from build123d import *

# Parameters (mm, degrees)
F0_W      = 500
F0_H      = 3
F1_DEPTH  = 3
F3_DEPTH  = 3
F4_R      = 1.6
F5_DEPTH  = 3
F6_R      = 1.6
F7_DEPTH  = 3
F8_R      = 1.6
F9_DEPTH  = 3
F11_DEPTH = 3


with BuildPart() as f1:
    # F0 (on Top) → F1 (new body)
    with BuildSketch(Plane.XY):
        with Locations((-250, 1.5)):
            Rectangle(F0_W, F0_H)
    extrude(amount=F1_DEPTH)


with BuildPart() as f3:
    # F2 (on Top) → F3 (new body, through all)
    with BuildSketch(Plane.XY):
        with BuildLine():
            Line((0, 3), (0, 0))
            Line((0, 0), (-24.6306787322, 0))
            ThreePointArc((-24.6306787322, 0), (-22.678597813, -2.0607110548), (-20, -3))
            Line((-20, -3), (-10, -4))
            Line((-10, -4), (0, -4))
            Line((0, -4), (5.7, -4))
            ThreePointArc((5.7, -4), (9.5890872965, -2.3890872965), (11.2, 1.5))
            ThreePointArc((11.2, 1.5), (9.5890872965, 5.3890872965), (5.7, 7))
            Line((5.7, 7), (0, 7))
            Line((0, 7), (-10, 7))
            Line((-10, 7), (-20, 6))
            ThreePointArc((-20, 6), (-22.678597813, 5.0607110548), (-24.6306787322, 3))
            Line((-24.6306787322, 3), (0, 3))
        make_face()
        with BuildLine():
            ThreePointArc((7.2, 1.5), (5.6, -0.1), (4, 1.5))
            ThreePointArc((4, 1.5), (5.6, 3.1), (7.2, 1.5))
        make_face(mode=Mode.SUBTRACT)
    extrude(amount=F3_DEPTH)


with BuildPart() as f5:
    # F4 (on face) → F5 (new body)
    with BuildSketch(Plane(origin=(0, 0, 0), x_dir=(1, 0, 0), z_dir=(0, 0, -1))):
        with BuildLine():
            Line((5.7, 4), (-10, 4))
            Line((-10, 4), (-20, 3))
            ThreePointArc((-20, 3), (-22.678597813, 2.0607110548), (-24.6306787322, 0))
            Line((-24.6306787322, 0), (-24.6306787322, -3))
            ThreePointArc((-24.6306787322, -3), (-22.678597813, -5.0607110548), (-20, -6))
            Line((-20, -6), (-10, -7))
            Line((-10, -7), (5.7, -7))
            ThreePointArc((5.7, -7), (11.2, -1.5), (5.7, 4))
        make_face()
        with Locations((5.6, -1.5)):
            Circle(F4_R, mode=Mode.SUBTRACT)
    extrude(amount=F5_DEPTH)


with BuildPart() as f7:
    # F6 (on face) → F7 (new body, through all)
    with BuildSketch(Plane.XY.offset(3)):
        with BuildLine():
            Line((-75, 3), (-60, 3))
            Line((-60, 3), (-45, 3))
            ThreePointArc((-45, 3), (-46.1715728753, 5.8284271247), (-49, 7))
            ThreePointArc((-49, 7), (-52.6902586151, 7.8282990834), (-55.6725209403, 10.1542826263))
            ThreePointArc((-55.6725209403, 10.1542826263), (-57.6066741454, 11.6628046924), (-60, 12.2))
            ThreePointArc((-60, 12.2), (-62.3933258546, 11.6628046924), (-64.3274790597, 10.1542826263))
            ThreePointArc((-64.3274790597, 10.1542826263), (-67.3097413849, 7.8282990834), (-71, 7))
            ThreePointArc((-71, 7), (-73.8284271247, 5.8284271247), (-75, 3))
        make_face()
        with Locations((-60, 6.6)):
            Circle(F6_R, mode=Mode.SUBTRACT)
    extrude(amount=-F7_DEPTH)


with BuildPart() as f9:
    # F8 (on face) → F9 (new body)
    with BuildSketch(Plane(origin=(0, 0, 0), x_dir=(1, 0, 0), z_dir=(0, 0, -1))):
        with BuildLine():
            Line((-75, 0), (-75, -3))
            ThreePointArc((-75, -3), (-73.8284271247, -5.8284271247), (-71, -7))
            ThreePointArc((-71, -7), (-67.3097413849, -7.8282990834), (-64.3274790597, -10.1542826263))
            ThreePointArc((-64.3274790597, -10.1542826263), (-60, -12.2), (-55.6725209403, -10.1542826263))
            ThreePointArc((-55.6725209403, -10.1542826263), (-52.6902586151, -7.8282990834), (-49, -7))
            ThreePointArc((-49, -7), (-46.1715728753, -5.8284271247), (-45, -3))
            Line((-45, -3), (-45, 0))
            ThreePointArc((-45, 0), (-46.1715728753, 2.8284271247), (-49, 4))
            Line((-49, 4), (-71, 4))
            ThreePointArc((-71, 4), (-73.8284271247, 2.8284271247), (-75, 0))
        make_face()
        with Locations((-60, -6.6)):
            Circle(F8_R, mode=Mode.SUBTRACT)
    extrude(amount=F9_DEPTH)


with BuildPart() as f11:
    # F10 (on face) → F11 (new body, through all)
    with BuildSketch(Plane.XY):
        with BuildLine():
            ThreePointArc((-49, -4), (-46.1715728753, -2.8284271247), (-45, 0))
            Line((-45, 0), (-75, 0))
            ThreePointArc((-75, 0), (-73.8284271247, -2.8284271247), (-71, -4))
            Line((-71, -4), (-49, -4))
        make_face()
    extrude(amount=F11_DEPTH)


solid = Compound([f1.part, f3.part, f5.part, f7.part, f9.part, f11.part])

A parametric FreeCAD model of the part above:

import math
import FreeCAD as App
import Part
import Sketcher

doc = App.newDocument("Part")
body = doc.addObject("PartDesign::Body", "Body")

sketch1 = body.newObject("Sketcher::SketchObject", "Sketch")
sketch1.AttachmentSupport = (doc.getObject("XY_Plane"), [""])
sketch1.MapMode = "FlatFace"
sketch1.addGeometry(Part.LineSegment(App.Vector(-500, 3, 0), App.Vector(-500, 0, 0)), False)
sketch1.addGeometry(Part.LineSegment(App.Vector(-500, 0, 0), App.Vector(0, 0, 0)), False)
sketch1.addGeometry(Part.LineSegment(App.Vector(0, 0, 0), App.Vector(0, 3, 0)), False)
sketch1.addGeometry(Part.LineSegment(App.Vector(0, 3, 0), App.Vector(-500, 3, 0)), False)
sketch1.addConstraint(Sketcher.Constraint("Coincident", 0, 2, 1, 1))
sketch1.addConstraint(Sketcher.Constraint("Coincident", 1, 2, 2, 1))
sketch1.addConstraint(Sketcher.Constraint("Coincident", 2, 2, 3, 1))
sketch1.addConstraint(Sketcher.Constraint("Coincident", 3, 2, 0, 1))
sketch1.addConstraint(Sketcher.Constraint("Vertical", 0))
sketch1.addConstraint(Sketcher.Constraint("Horizontal", 1))
sketch1.addConstraint(Sketcher.Constraint("Vertical", 2))
sketch1.addConstraint(Sketcher.Constraint("Horizontal", 3))
sketch1.addConstraint(Sketcher.Constraint("Coincident", 1, 2, -1, 1))
sketch1.addConstraint(Sketcher.Constraint("DistanceX", 1, 1, 1, 2, 500.0))
sketch1.addConstraint(Sketcher.Constraint("DistanceY", 0, 2, 0, 1, 3.0))
pad1 = body.newObject("PartDesign::Pad", "Pad")
pad1.Profile = sketch1
pad1.Length = 3
body2 = doc.addObject("PartDesign::Body", "Body001")

sketch2 = body2.newObject("Sketcher::SketchObject", "Sketch001")
sketch2.AttachmentSupport = (doc.getObject("XY_Plane001"), [""])
sketch2.MapMode = "FlatFace"
sketch2.addGeometry(Part.LineSegment(App.Vector(0, 3, 0), App.Vector(0, 0, 0)), False)
sketch2.addGeometry(Part.LineSegment(App.Vector(0, 0, 0), App.Vector(-24.6, 0, 0)), False)
sketch2.addGeometry(Part.ArcOfCircle(Part.Circle(App.Vector(-19.4, 3, 0), App.Vector(0, 0, 1), 6), math.radians(-150), math.radians(-96)), False)
sketch2.addGeometry(Part.LineSegment(App.Vector(-20, -3, 0), App.Vector(-10, -4, 0)), False)
sketch2.addGeometry(Part.LineSegment(App.Vector(-10, -4, 0), App.Vector(5.7, -4, 0)), False)
sketch2.addGeometry(Part.ArcOfCircle(Part.Circle(App.Vector(5.7, 1.5, 0), App.Vector(0, 0, 1), 5.5), math.radians(-90), math.radians(0)), False)
sketch2.addGeometry(Part.ArcOfCircle(Part.Circle(App.Vector(5.7, 1.5, 0), App.Vector(0, 0, 1), 5.5), math.radians(0), math.radians(90)), False)
sketch2.addGeometry(Part.LineSegment(App.Vector(5.7, 7, 0), App.Vector(-10, 7, 0)), False)
sketch2.addGeometry(Part.LineSegment(App.Vector(-10, 7, 0), App.Vector(-20, 6, 0)), False)
sketch2.addGeometry(Part.ArcOfCircle(Part.Circle(App.Vector(-19.4, 0, 0), App.Vector(0, 0, 1), 6), math.radians(96), math.radians(150)), False)
sketch2.addGeometry(Part.LineSegment(App.Vector(-24.6, 3, 0), App.Vector(0, 3, 0)), False)
sketch2.addGeometry(Part.Circle(App.Vector(5.6, 1.5, 0), App.Vector(0, 0, 1), 1.6), False)
sketch2.addConstraint(Sketcher.Constraint("Coincident", 0, 2, 1, 1))
sketch2.addConstraint(Sketcher.Constraint("Coincident", 1, 2, 2, 1))
sketch2.addConstraint(Sketcher.Constraint("Tangent", 2, 2, 3, 1))
sketch2.addConstraint(Sketcher.Constraint("Coincident", 3, 2, 4, 1))
sketch2.addConstraint(Sketcher.Constraint("Tangent", 4, 2, 5, 1))
sketch2.addConstraint(Sketcher.Constraint("Tangent", 5, 2, 6, 1))
sketch2.addConstraint(Sketcher.Constraint("Tangent", 6, 2, 7, 1))
sketch2.addConstraint(Sketcher.Constraint("Coincident", 7, 2, 8, 1))
sketch2.addConstraint(Sketcher.Constraint("Tangent", 8, 2, 9, 1))
sketch2.addConstraint(Sketcher.Constraint("Coincident", 9, 2, 10, 1))
sketch2.addConstraint(Sketcher.Constraint("Coincident", 10, 2, 0, 1))
sketch2.addConstraint(Sketcher.Constraint("Vertical", 0))
sketch2.addConstraint(Sketcher.Constraint("Horizontal", 1))
sketch2.addConstraint(Sketcher.Constraint("Horizontal", 4))
sketch2.addConstraint(Sketcher.Constraint("Horizontal", 7))
sketch2.addConstraint(Sketcher.Constraint("Horizontal", 10))
sketch2.addConstraint(Sketcher.Constraint("Coincident", 0, 2, -1, 1))
sketch2.addConstraint(Sketcher.Constraint("Equal", 5, 6))
sketch2.addConstraint(Sketcher.Constraint("Equal", 2, 9))
sketch2.addConstraint(Sketcher.Constraint("PointOnObject", 9, 3, -1))
sketch2.addConstraint(Sketcher.Constraint("Horizontal", 6, 3, 11, 3))
sketch2.addConstraint(Sketcher.Constraint("Horizontal", 11, 3, 5, 2))
sketch2.addConstraint(Sketcher.Constraint("Horizontal", 2, 3, 9, 2))
sketch2.addConstraint(Sketcher.Constraint("Vertical", 2, 3, 9, 3))
sketch2.addConstraint(Sketcher.Constraint("Vertical", 3, 2, 7, 2))
sketch2.addConstraint(Sketcher.Constraint("Vertical", 2, 2, 8, 2))
sketch2.addConstraint(Sketcher.Constraint("Diameter", 11, 3.2))
sketch2.addConstraint(Sketcher.Constraint("Radius", 5, 5.5))
sketch2.addConstraint(Sketcher.Constraint("DistanceY", 0, 2, 0, 1, 3.0))
sketch2.addConstraint(Sketcher.Constraint("DistanceX", 4, 1, 4, 2, 15.7))
sketch2.addConstraint(Sketcher.Constraint("DistanceX", 2, 2, -1, 1, 20.0))
sketch2.addConstraint(Sketcher.Constraint("DistanceY", 2, 2, -1, 1, 3.0))
sketch2.addConstraint(Sketcher.Constraint("DistanceX", 3, 2, -1, 1, 10.0))
sketch2.addConstraint(Sketcher.Constraint("DistanceX", 2, 3, 11, 3, 25.0))
pad2 = body2.newObject("PartDesign::Pad", "Pad001")
pad2.Profile = sketch2
pad2.Length = 3
body3 = doc.addObject("PartDesign::Body", "Body002")

sketch3 = body3.newObject("Sketcher::SketchObject", "Sketch002")
sketch3.AttachmentSupport = (doc.getObject("XY_Plane002"), [""])
sketch3.MapMode = "FlatFace"
sketch3.addGeometry(Part.LineSegment(App.Vector(5.7, -4, 0), App.Vector(-10, -4, 0)), False)
sketch3.addGeometry(Part.LineSegment(App.Vector(-10, -4, 0), App.Vector(-20, -3, 0)), False)
sketch3.addGeometry(Part.ArcOfCircle(Part.Circle(App.Vector(-19.4, 3, 0), App.Vector(0, 0, 1), 6), math.radians(-150), math.radians(-96)), False)
sketch3.addGeometry(Part.LineSegment(App.Vector(-24.6, 0, 0), App.Vector(-24.6, 3, 0)), False)
sketch3.addGeometry(Part.ArcOfCircle(Part.Circle(App.Vector(-19.4, 0, 0), App.Vector(0, 0, 1), 6), math.radians(96), math.radians(150)), False)
sketch3.addGeometry(Part.LineSegment(App.Vector(-20, 6, 0), App.Vector(-10, 7, 0)), False)
sketch3.addGeometry(Part.LineSegment(App.Vector(-10, 7, 0), App.Vector(5.7, 7, 0)), False)
sketch3.addGeometry(Part.ArcOfCircle(Part.Circle(App.Vector(5.7, 1.5, 0), App.Vector(0, 0, 1), 5.5), math.radians(-90), math.radians(90)), False)
sketch3.addGeometry(Part.Circle(App.Vector(5.6, 1.5, 0), App.Vector(0, 0, 1), 1.6), False)
sketch3.addConstraint(Sketcher.Constraint("Coincident", 0, 2, 1, 1))
sketch3.addConstraint(Sketcher.Constraint("Tangent", 1, 2, 2, 2))
sketch3.addConstraint(Sketcher.Constraint("Coincident", 2, 1, 3, 1))
sketch3.addConstraint(Sketcher.Constraint("Coincident", 3, 2, 4, 2))
sketch3.addConstraint(Sketcher.Constraint("Tangent", 4, 1, 5, 1))
sketch3.addConstraint(Sketcher.Constraint("Coincident", 5, 2, 6, 1))
sketch3.addConstraint(Sketcher.Constraint("Tangent", 6, 2, 7, 2))
sketch3.addConstraint(Sketcher.Constraint("Tangent", 7, 1, 0, 1))
sketch3.addConstraint(Sketcher.Constraint("Horizontal", 0))
sketch3.addConstraint(Sketcher.Constraint("Vertical", 3))
sketch3.addConstraint(Sketcher.Constraint("Horizontal", 6))
sketch3.addConstraint(Sketcher.Constraint("Equal", 2, 4))
sketch3.addConstraint(Sketcher.Constraint("PointOnObject", 4, 3, -1))
sketch3.addConstraint(Sketcher.Constraint("PointOnObject", 2, 1, -1))
sketch3.addConstraint(Sketcher.Constraint("Horizontal", 7, 3, 8, 3))
sketch3.addConstraint(Sketcher.Constraint("Horizontal", 2, 3, 3, 2))
sketch3.addConstraint(Sketcher.Constraint("Vertical", 1, 2, 4, 1))
sketch3.addConstraint(Sketcher.Constraint("Vertical", 0, 2, 5, 2))
sketch3.addConstraint(Sketcher.Constraint("Diameter", 8, 3.2))
sketch3.addConstraint(Sketcher.Constraint("Radius", 7, 5.5))
sketch3.addConstraint(Sketcher.Constraint("DistanceY", 3, 1, 3, 2, 3.0))
sketch3.addConstraint(Sketcher.Constraint("DistanceX", 0, 2, 0, 1, 15.7))
sketch3.addConstraint(Sketcher.Constraint("DistanceX", 0, 2, -1, 1, 10.0))
sketch3.addConstraint(Sketcher.Constraint("DistanceX", 1, 2, -1, 1, 20.0))
sketch3.addConstraint(Sketcher.Constraint("DistanceY", 1, 2, -1, 1, 3.0))
sketch3.addConstraint(Sketcher.Constraint("DistanceX", 2, 3, 8, 3, 25.0))
pad3 = body3.newObject("PartDesign::Pad", "Pad002")
pad3.Profile = sketch3
pad3.Length = 3
pad3.Reversed = True
body4 = doc.addObject("PartDesign::Body", "Body003")

sketch4 = body4.newObject("Sketcher::SketchObject", "Sketch003")
sketch4.AttachmentSupport = (doc.getObject("XY_Plane003"), [""])
sketch4.MapMode = "FlatFace"
sketch4.AttachmentOffset = App.Placement(App.Vector(0, 0, 3), App.Rotation())
sketch4.addGeometry(Part.LineSegment(App.Vector(-75, 3, 0), App.Vector(-45, 3, 0)), False)
sketch4.addGeometry(Part.ArcOfCircle(Part.Circle(App.Vector(-49, 3, 0), App.Vector(0, 0, 1), 4), math.radians(0), math.radians(90)), False)
sketch4.addGeometry(Part.ArcOfCircle(Part.Circle(App.Vector(-49, 15.6, 0), App.Vector(0, 0, 1), 8.6), math.radians(-141), math.radians(-90)), False)
sketch4.addGeometry(Part.ArcOfCircle(Part.Circle(App.Vector(-60, 6.6, 0), App.Vector(0, 0, 1), 5.6), math.radians(39), math.radians(90)), False)
sketch4.addGeometry(Part.ArcOfCircle(Part.Circle(App.Vector(-60, 6.6, 0), App.Vector(0, 0, 1), 5.6), math.radians(90), math.radians(141)), False)
sketch4.addGeometry(Part.ArcOfCircle(Part.Circle(App.Vector(-71, 15.6, 0), App.Vector(0, 0, 1), 8.6), math.radians(-90), math.radians(-39)), False)
sketch4.addGeometry(Part.ArcOfCircle(Part.Circle(App.Vector(-71, 3, 0), App.Vector(0, 0, 1), 4), math.radians(90), math.radians(180)), False)
sketch4.addGeometry(Part.Circle(App.Vector(-60, 6.6, 0), App.Vector(0, 0, 1), 1.6), False)
sketch4.addConstraint(Sketcher.Constraint("Coincident", 0, 2, 1, 1))
sketch4.addConstraint(Sketcher.Constraint("Tangent", 1, 2, 2, 2))
sketch4.addConstraint(Sketcher.Constraint("Tangent", 2, 1, 3, 1))
sketch4.addConstraint(Sketcher.Constraint("Tangent", 3, 2, 4, 1))
sketch4.addConstraint(Sketcher.Constraint("Tangent", 4, 2, 5, 2))
sketch4.addConstraint(Sketcher.Constraint("Tangent", 5, 1, 6, 1))
sketch4.addConstraint(Sketcher.Constraint("Coincident", 6, 2, 0, 1))
sketch4.addConstraint(Sketcher.Constraint("Horizontal", 0))
sketch4.addConstraint(Sketcher.Constraint("Coincident", 7, 3, 3, 3))
sketch4.addConstraint(Sketcher.Constraint("Equal", 3, 4))
sketch4.addConstraint(Sketcher.Constraint("Equal", 2, 5))
sketch4.addConstraint(Sketcher.Constraint("Equal", 1, 6))
sketch4.addConstraint(Sketcher.Constraint("Horizontal", 2, 3, 5, 3))
sketch4.addConstraint(Sketcher.Constraint("Horizontal", 6, 3, 0, 2))
sketch4.addConstraint(Sketcher.Constraint("Vertical", 1, 3, 2, 3))
sketch4.addConstraint(Sketcher.Constraint("Vertical", 5, 3, 6, 3))
sketch4.addConstraint(Sketcher.Constraint("Vertical", 7, 3, 3, 2))
sketch4.addConstraint(Sketcher.Constraint("Radius", 1, 4.0))
sketch4.addConstraint(Sketcher.Constraint("Diameter", 7, 3.2))
sketch4.addConstraint(Sketcher.Constraint("Radius", 3, 5.6))
sketch4.addConstraint(Sketcher.Constraint("DistanceX", 0, 1, 0, 2, 30.0))
sketch4.addConstraint(Sketcher.Constraint("DistanceX", 1, 3, -1, 1, 49.0))
sketch4.addConstraint(Sketcher.Constraint("DistanceY", -1, 1, 1, 3, 3.0))
sketch4.addConstraint(Sketcher.Constraint("DistanceY", -1, 1, 3, 3, 6.6))
pad4 = body4.newObject("PartDesign::Pad", "Pad003")
pad4.Profile = sketch4
pad4.Length = 3
pad4.Reversed = True
body5 = doc.addObject("PartDesign::Body", "Body004")

sketch5 = body5.newObject("Sketcher::SketchObject", "Sketch004")
sketch5.AttachmentSupport = (doc.getObject("XY_Plane004"), [""])
sketch5.MapMode = "FlatFace"
sketch5.addGeometry(Part.LineSegment(App.Vector(-75, 0, 0), App.Vector(-75, 3, 0)), False)
sketch5.addGeometry(Part.ArcOfCircle(Part.Circle(App.Vector(-71, 3, 0), App.Vector(0, 0, 1), 4), math.radians(90), math.radians(180)), False)
sketch5.addGeometry(Part.ArcOfCircle(Part.Circle(App.Vector(-71, 15.6, 0), App.Vector(0, 0, 1), 8.6), math.radians(-90), math.radians(-39)), False)
sketch5.addGeometry(Part.ArcOfCircle(Part.Circle(App.Vector(-60, 6.6, 0), App.Vector(0, 0, 1), 5.6), math.radians(39), math.radians(141)), False)
sketch5.addGeometry(Part.ArcOfCircle(Part.Circle(App.Vector(-49, 15.6, 0), App.Vector(0, 0, 1), 8.6), math.radians(-141), math.radians(-90)), False)
sketch5.addGeometry(Part.ArcOfCircle(Part.Circle(App.Vector(-49, 3, 0), App.Vector(0, 0, 1), 4), math.radians(0), math.radians(90)), False)
sketch5.addGeometry(Part.LineSegment(App.Vector(-45, 3, 0), App.Vector(-45, 0, 0)), False)
sketch5.addGeometry(Part.ArcOfCircle(Part.Circle(App.Vector(-49, 0, 0), App.Vector(0, 0, 1), 4), math.radians(-90), math.radians(0)), False)
sketch5.addGeometry(Part.LineSegment(App.Vector(-49, -4, 0), App.Vector(-71, -4, 0)), False)
sketch5.addGeometry(Part.ArcOfCircle(Part.Circle(App.Vector(-71, 0, 0), App.Vector(0, 0, 1), 4), math.radians(180), math.radians(270)), False)
sketch5.addGeometry(Part.Circle(App.Vector(-60, 6.6, 0), App.Vector(0, 0, 1), 1.6), False)
sketch5.addConstraint(Sketcher.Constraint("Tangent", 0, 2, 1, 2))
sketch5.addConstraint(Sketcher.Constraint("Tangent", 1, 1, 2, 1))
sketch5.addConstraint(Sketcher.Constraint("Tangent", 2, 2, 3, 2))
sketch5.addConstraint(Sketcher.Constraint("Tangent", 3, 1, 4, 1))
sketch5.addConstraint(Sketcher.Constraint("Tangent", 4, 2, 5, 2))
sketch5.addConstraint(Sketcher.Constraint("Tangent", 5, 1, 6, 1))
sketch5.addConstraint(Sketcher.Constraint("Tangent", 6, 2, 7, 2))
sketch5.addConstraint(Sketcher.Constraint("Tangent", 7, 1, 8, 1))
sketch5.addConstraint(Sketcher.Constraint("Tangent", 8, 2, 9, 2))
sketch5.addConstraint(Sketcher.Constraint("Tangent", 9, 1, 0, 1))
sketch5.addConstraint(Sketcher.Constraint("Vertical", 0))
sketch5.addConstraint(Sketcher.Constraint("Vertical", 6))
sketch5.addConstraint(Sketcher.Constraint("Horizontal", 8))
sketch5.addConstraint(Sketcher.Constraint("Coincident", 10, 3, 3, 3))
sketch5.addConstraint(Sketcher.Constraint("Equal", 2, 4))
sketch5.addConstraint(Sketcher.Constraint("Equal", 1, 5))
sketch5.addConstraint(Sketcher.Constraint("Equal", 5, 7))
sketch5.addConstraint(Sketcher.Constraint("Equal", 7, 9))
sketch5.addConstraint(Sketcher.Constraint("PointOnObject", 7, 3, -1))
sketch5.addConstraint(Sketcher.Constraint("Horizontal", 2, 3, 4, 3))
sketch5.addConstraint(Sketcher.Constraint("Vertical", 1, 3, 2, 3))
sketch5.addConstraint(Sketcher.Constraint("Vertical", 4, 3, 5, 3))
sketch5.addConstraint(Sketcher.Constraint("Radius", 1, 4.0))
sketch5.addConstraint(Sketcher.Constraint("Diameter", 10, 3.2))
sketch5.addConstraint(Sketcher.Constraint("Radius", 3, 5.6))
sketch5.addConstraint(Sketcher.Constraint("DistanceX", 8, 2, 8, 1, 22.0))
sketch5.addConstraint(Sketcher.Constraint("DistanceY", 0, 1, 0, 2, 3.0))
sketch5.addConstraint(Sketcher.Constraint("DistanceX", 1, 3, -1, 1, 71.0))
sketch5.addConstraint(Sketcher.Constraint("DistanceY", -1, 1, 3, 3, 6.6))
pad5 = body5.newObject("PartDesign::Pad", "Pad004")
pad5.Profile = sketch5
pad5.Length = 3
pad5.Reversed = True
body6 = doc.addObject("PartDesign::Body", "Body005")

sketch6 = body6.newObject("Sketcher::SketchObject", "Sketch005")
sketch6.AttachmentSupport = (doc.getObject("XY_Plane005"), [""])
sketch6.MapMode = "FlatFace"
sketch6.addGeometry(Part.ArcOfCircle(Part.Circle(App.Vector(-49, 0, 0), App.Vector(0, 0, 1), 4), math.radians(-90), math.radians(0)), False)
sketch6.addGeometry(Part.LineSegment(App.Vector(-45, 0, 0), App.Vector(-75, 0, 0)), False)
sketch6.addGeometry(Part.ArcOfCircle(Part.Circle(App.Vector(-71, 0, 0), App.Vector(0, 0, 1), 4), math.radians(180), math.radians(270)), False)
sketch6.addGeometry(Part.LineSegment(App.Vector(-71, -4, 0), App.Vector(-49, -4, 0)), False)
sketch6.addConstraint(Sketcher.Constraint("Coincident", 0, 2, 1, 1))
sketch6.addConstraint(Sketcher.Constraint("Coincident", 1, 2, 2, 1))
sketch6.addConstraint(Sketcher.Constraint("Tangent", 2, 2, 3, 1))
sketch6.addConstraint(Sketcher.Constraint("Tangent", 3, 2, 0, 1))
sketch6.addConstraint(Sketcher.Constraint("Horizontal", 1))
sketch6.addConstraint(Sketcher.Constraint("Horizontal", 3))
sketch6.addConstraint(Sketcher.Constraint("Equal", 0, 2))
sketch6.addConstraint(Sketcher.Constraint("PointOnObject", 0, 3, -1))
sketch6.addConstraint(Sketcher.Constraint("PointOnObject", 0, 2, -1))
sketch6.addConstraint(Sketcher.Constraint("Radius", 0, 4.0))
sketch6.addConstraint(Sketcher.Constraint("DistanceX", 1, 2, 1, 1, 30.0))
sketch6.addConstraint(Sketcher.Constraint("DistanceX", 0, 3, -1, 1, 49.0))
pad6 = body6.newObject("PartDesign::Pad", "Pad005")
pad6.Profile = sketch6
pad6.Length = 3

doc.recompute()
